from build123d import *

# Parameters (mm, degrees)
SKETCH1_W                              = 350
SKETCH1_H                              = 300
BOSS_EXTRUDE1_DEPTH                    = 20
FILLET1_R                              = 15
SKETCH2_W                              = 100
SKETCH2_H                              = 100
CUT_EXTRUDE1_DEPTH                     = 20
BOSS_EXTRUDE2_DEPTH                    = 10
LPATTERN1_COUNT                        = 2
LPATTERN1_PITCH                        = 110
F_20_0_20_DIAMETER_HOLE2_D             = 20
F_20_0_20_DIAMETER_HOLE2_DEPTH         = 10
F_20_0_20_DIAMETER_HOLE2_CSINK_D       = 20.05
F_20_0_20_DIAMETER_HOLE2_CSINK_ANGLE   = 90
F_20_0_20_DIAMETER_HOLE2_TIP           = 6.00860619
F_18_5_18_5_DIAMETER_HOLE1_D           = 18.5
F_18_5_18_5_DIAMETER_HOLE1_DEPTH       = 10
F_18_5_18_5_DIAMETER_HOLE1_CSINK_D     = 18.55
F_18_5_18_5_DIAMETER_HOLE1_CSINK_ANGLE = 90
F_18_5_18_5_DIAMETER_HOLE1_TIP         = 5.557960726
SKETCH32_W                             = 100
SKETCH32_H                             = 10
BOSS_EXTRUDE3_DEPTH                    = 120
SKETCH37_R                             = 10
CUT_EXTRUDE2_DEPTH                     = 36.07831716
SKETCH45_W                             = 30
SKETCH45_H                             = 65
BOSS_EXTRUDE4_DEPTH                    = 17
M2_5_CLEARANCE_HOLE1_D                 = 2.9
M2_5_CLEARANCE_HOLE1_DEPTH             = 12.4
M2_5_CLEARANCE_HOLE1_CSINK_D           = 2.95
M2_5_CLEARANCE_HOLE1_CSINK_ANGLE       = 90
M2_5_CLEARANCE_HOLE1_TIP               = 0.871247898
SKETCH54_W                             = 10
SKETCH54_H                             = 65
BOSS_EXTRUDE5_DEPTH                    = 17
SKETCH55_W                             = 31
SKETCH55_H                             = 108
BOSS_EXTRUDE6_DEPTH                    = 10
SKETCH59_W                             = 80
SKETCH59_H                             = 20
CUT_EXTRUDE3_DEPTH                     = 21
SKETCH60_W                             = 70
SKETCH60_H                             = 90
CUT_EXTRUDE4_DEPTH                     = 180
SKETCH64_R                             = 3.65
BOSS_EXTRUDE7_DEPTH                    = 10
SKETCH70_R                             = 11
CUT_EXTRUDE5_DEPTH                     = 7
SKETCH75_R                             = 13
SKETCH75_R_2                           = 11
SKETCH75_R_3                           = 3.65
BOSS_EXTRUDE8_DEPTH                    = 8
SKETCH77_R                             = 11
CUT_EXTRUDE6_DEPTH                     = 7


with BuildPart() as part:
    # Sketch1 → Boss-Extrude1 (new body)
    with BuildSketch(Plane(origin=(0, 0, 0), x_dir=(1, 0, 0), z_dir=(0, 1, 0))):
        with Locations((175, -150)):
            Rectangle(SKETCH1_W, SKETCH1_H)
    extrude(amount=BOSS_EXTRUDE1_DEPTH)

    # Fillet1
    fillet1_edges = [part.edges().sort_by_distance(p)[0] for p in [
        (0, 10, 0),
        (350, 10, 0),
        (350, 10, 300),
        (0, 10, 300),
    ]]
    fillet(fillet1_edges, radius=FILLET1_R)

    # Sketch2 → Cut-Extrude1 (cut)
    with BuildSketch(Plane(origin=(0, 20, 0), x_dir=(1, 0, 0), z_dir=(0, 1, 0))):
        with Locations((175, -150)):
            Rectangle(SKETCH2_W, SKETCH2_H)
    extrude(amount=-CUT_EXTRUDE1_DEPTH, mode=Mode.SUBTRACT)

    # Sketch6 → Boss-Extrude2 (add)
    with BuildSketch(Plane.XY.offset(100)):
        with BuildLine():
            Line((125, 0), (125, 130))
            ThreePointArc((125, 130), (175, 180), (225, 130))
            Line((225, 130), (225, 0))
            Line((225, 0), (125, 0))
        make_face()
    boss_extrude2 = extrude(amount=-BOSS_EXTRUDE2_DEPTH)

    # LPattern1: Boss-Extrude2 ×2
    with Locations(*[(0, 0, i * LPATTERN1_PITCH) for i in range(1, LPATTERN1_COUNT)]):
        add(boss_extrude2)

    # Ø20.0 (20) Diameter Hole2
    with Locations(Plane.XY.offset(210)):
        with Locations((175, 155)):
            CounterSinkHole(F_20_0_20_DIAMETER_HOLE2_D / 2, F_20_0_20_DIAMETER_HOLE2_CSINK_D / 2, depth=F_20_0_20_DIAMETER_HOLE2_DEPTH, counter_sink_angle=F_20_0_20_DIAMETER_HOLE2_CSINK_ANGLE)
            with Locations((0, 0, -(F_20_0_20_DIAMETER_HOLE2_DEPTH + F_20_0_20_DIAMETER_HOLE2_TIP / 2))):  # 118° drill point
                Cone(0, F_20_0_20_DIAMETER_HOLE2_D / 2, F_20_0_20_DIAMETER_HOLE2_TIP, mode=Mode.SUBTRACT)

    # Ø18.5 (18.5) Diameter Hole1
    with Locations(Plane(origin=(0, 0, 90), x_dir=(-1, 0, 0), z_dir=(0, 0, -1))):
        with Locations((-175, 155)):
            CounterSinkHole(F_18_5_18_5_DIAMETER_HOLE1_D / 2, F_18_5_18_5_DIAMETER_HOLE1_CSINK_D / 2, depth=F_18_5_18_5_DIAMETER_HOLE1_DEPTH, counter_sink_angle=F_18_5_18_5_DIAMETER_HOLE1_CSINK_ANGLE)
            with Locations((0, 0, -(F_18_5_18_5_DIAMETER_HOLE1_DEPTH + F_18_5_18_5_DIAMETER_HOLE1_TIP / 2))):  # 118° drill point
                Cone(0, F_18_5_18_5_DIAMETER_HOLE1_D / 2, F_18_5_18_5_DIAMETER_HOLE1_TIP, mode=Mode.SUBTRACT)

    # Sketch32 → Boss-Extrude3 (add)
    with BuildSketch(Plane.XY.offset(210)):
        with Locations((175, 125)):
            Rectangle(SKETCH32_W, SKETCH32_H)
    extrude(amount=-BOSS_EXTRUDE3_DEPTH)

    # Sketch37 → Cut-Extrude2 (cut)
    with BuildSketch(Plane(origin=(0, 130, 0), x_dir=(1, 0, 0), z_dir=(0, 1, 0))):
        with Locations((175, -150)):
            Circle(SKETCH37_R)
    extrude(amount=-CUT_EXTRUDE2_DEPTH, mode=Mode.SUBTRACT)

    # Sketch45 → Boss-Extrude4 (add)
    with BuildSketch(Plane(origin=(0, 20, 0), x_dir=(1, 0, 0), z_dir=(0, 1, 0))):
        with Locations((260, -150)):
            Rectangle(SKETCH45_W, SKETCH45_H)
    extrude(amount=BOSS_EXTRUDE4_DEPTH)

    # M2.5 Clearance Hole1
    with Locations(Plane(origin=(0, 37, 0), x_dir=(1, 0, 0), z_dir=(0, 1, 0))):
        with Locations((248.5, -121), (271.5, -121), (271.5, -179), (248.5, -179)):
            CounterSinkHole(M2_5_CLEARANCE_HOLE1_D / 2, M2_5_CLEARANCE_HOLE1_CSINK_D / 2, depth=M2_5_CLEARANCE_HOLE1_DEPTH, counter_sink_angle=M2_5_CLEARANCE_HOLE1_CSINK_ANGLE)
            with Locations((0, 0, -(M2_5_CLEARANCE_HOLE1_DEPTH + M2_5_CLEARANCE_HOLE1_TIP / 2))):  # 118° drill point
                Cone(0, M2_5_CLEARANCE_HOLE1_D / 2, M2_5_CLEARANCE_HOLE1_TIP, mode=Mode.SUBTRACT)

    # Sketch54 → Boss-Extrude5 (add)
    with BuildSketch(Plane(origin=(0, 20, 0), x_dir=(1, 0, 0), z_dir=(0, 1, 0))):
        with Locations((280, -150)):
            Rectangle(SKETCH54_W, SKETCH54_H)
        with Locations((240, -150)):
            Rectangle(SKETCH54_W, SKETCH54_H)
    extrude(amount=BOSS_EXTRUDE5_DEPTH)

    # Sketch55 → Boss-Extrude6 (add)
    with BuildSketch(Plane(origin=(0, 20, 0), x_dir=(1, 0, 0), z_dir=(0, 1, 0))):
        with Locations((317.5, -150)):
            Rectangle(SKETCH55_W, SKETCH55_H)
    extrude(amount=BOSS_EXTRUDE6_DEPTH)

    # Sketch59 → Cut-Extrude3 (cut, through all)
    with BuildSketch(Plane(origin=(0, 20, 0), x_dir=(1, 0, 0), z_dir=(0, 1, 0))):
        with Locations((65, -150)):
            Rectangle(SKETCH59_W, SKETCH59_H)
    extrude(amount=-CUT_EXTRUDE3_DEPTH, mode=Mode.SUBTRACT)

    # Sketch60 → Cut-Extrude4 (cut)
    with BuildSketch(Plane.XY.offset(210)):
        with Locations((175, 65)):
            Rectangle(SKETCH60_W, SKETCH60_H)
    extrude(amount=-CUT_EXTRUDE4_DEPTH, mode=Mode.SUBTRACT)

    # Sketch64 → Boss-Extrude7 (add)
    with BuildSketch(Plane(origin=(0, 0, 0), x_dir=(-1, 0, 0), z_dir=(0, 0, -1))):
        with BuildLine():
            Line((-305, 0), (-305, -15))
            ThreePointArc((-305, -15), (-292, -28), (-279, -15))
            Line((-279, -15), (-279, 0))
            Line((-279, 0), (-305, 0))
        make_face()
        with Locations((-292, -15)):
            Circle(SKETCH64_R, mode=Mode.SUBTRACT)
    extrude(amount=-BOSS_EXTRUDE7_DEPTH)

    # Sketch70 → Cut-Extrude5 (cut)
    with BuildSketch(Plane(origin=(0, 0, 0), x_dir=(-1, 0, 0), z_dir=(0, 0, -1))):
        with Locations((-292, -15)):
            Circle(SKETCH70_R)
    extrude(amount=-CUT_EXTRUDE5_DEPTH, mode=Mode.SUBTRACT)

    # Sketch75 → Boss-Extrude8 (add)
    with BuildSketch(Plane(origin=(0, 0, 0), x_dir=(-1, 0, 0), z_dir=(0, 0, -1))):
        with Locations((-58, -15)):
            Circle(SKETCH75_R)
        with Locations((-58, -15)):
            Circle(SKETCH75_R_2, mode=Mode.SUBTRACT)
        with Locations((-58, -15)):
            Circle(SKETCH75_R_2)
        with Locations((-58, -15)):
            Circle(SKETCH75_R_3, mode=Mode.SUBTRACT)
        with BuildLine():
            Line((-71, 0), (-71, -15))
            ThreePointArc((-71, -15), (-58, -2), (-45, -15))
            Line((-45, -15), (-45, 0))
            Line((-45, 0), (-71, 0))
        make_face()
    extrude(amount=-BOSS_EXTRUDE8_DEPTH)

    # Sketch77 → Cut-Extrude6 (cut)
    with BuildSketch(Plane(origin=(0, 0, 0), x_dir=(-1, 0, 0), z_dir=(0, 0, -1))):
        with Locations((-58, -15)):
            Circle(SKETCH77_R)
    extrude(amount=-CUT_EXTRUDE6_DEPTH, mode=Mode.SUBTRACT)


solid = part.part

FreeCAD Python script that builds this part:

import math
import FreeCAD as App
import Part
import Sketcher
from FreeCAD import Vector


def edges_at(feature, points):
    """Names of the edges that pass closest to the given points."""
    edges = feature.Shape.Edges
    near = lambda p: min(range(len(edges)), key=lambda i: edges[i].distToShape(Part.Vertex(*p))[0])
    return sorted({f"Edge{near(p) + 1}" for p in points})


def add_polygon(sketch, points):
    """Adds a closed chain of lines whose ends are joined by coincident constraints."""
    first, n = sketch.GeometryCount, len(points)
    for a, b in zip(points, points[1:] + points[:1]):
        sketch.addGeometry(Part.LineSegment(App.Vector(*a, 0), App.Vector(*b, 0)), False)
    for i in range(n):
        sketch.addConstraint(Sketcher.Constraint("Coincident", first + i, 2, first + (i + 1) % n, 1))

doc = App.newDocument("Part")
params = doc.addObject("Spreadsheet::Sheet", "Params")
for row, (alias, value) in enumerate([
    ("sketch1_width", "350 mm"),
    ("sketch1_height", "300 mm"),
    ("pad1_length", "20 mm"),
    ("fillet_radius", "15 mm"),
    ("sketch2_width", "100 mm"),
    ("pocket1_length", "20 mm"),
    ("sketch3_radius", "50 mm"),
    ("sketch3_height", "130 mm"),
    ("pad2_length", "10 mm"),
    ("linearpattern_pitch", "110 mm"),
    ("sketch4_diameter", "20 mm"),
    ("hole_diameter", "20 mm"),
    ("hole_depth", "10 mm"),
    ("hole_csink_diameter", "20.05 mm"),
    ("sketch5_diameter", "18.5 mm"),
    ("hole2_diameter", "18.5 mm"),
    ("hole2_depth", "10 mm"),
    ("hole2_csink_diameter", "18.55 mm"),
    ("sketch6_width", "100 mm"),
    ("sketch6_height", "10 mm"),
    ("pad3_length", "120 mm"),
    ("sketch7_diameter", "20 mm"),
    ("pocket2_length", "36.078317 mm"),
    ("sketch8_width", "30 mm"),
    ("sketch8_height", "65 mm"),
    ("pad4_length", "17 mm"),
    ("sketch9_diameter", "2.9 mm"),
    ("hole3_diameter", "2.9 mm"),
    ("hole3_depth", "12.4 mm"),
    ("hole3_csink_diameter", "2.95 mm"),
    ("sketch10_width", "10 mm"),
    ("sketch10_height", "65 mm"),
    ("pad5_length", "17 mm"),
    ("sketch11_width", "31 mm"),
    ("sketch11_height", "108 mm"),
    ("pad6_length", "10 mm"),
    ("sketch12_width", "80 mm"),
    ("sketch12_height", "20 mm"),
    ("sketch13_width", "70 mm"),
    ("sketch13_height", "90 mm"),
    ("pocket4_length", "180 mm"),
    ("sketch14_radius", "13 mm"),
    ("sketch14_diameter", "7.3 mm"),
    ("sketch14_height", "15 mm"),
    ("pad7_length", "10 mm"),
    ("sketch15_diameter", "22 mm"),
    ("pocket5_length", "7 mm"),
    ("sketch16_radius", "13 mm"),
    ("sketch16_diameter", "7.3 mm"),
    ("sketch16_height", "15 mm"),
    ("pad8_length", "8 mm"),
    ("sketch17_diameter", "22 mm"),
    ("pocket6_length", "7 mm"),
], start=1):
    params.set(f"A{row}", alias)
    params.set(f"B{row}", "=" + value)
    params.setAlias(f"B{row}", alias)

body = doc.addObject("PartDesign::Body", "Body")

# Sketch on XZ plane
sketch1 = body.newObject("Sketcher::SketchObject", "Sketch")
sketch1.AttachmentSupport = (doc.getObject("XZ_Plane"), [""])
sketch1.MapMode = "FlatFace"
add_polygon(sketch1, [(0, 0), (0, 300), (350, 300), (350, 0)])  # lines 0-3
sketch1.addConstraint([
    Sketcher.Constraint("Vertical", 0),
    Sketcher.Constraint("Horizontal", 1),
    Sketcher.Constraint("Vertical", 2),
    Sketcher.Constraint("Horizontal", 3),
    Sketcher.Constraint("Coincident", 3, 2, -1, 1),
    Sketcher.Constraint("DistanceX", 1, 1, 1, 2, 350.0),
    Sketcher.Constraint("DistanceY", 0, 1, 0, 2, 300.0),
])
sketch1.setExpression("Constraints[9]", "Params.sketch1_width")
sketch1.setExpression("Constraints[10]", "Params.sketch1_height")
pad1 = body.newObject("PartDesign::Pad", "Pad")
pad1.Profile = sketch1
pad1.setExpression("Length", "Params.pad1_length")
pad1.Reversed = True
doc.recompute()

fillet = body.newObject("PartDesign::Fillet", "Fillet")
fillet.Base = (pad1, edges_at(pad1, [
    (0, 10, 0),
    (350, 10, 0),
    (350, 10, 300),
    (0, 10, 300),
]))
fillet.setExpression("Radius", "Params.fillet_radius")

# Sketch on XZ plane
sketch2 = body.newObject("Sketcher::SketchObject", "Sketch001")
sketch2.AttachmentSupport = (doc.getObject("XZ_Plane"), [""])
sketch2.MapMode = "FlatFace"
sketch2.AttachmentOffset = App.Placement(Vector(0, 0, -20), App.Rotation())
add_polygon(sketch2, [(125, 100), (125, 200), (225, 200), (225, 100)])  # lines 0-3
sketch2.addConstraint([
    Sketcher.Constraint("Vertical", 0),
    Sketcher.Constraint("Horizontal", 1),
    Sketcher.Constraint("Vertical", 2),
    Sketcher.Constraint("Horizontal", 3),
    Sketcher.Constraint("Equal", 3, 0),
    Sketcher.Constraint("DistanceX", 1, 1, 1, 2, 100.0),
    Sketcher.Constraint("DistanceX", -1, 1, 0, 2, 125.0),
    Sketcher.Constraint("DistanceY", -1, 1, 0, 2, 200.0),
])
sketch2.setExpression("Constraints[9]", "Params.sketch2_width")
pocket1 = body.newObject("PartDesign::Pocket", "Pocket")
pocket1.Profile = sketch2
pocket1.setExpression("Length", "Params.pocket1_length")
pocket1.Reversed = True

# Sketch on XY plane
sketch3 = body.newObject("Sketcher::SketchObject", "Sketch002")
sketch3.AttachmentSupport = (doc.getObject("XY_Plane"), [""])
sketch3.MapMode = "FlatFace"
sketch3.AttachmentOffset = App.Placement(Vector(0, 0, 100), App.Rotation())
sketch3.addGeometry([
    Part.LineSegment(Vector(125, 130, 0), Vector(125, 0, 0)),
    Part.LineSegment(Vector(125, 0, 0), Vector(225, 0, 0)),
    Part.LineSegment(Vector(225, 0, 0), Vector(225, 130, 0)),
    Part.ArcOfCircle(Part.Circle(Vector(175, 130, 0), Vector(0, 0, 1), 50), math.radians(0), math.radians(180)),
], False)
sketch3.addConstraint([
    Sketcher.Constraint("Coincident", 0, 2, 1, 1),
    Sketcher.Constraint("Coincident", 1, 2, 2, 1),
    Sketcher.Constraint("Tangent", 2, 2, 3, 1),
    Sketcher.Constraint("Tangent", 3, 2, 0, 1),
    Sketcher.Constraint("Vertical", 0),
    Sketcher.Constraint("Horizontal", 1),
    Sketcher.Constraint("Vertical", 2),
    Sketcher.Constraint("PointOnObject", 0, 2, -1),
    Sketcher.Constraint("Radius", 3, 50.0),
    Sketcher.Constraint("DistanceY", 0, 2, 0, 1, 130.0),
    Sketcher.Constraint("DistanceX", -1, 1, 3, 3, 175.0),
])
sketch3.setExpression("Constraints[8]", "Params.sketch3_radius")
sketch3.setExpression("Constraints[9]", "Params.sketch3_height")
pad2 = body.newObject("PartDesign::Pad", "Pad001")
pad2.Profile = sketch3
pad2.setExpression("Length", "Params.pad2_length")
pad2.Reversed = True
doc.recompute()

linearpattern = body.newObject("PartDesign::LinearPattern", "LinearPattern")
linearpattern.Originals = [pad2]
linearpattern.Direction = (doc.getObject("Z_Axis"), [""])
linearpattern.Mode = "offset"
linearpattern.setExpression("Offset", "Params.linearpattern_pitch")
linearpattern.Occurrences = 2
body.Tip = linearpattern

# Sketch on XY plane
sketch4 = body.newObject("Sketcher::SketchObject", "Sketch003")
sketch4.AttachmentSupport = (doc.getObject("XY_Plane"), [""])
sketch4.MapMode = "FlatFace"
sketch4.AttachmentOffset = App.Placement(Vector(0, 0, 210), App.Rotation())
sketch4.addGeometry(Part.Circle(Vector(175, 155, 0), Vector(0, 0, 1), 10), False)
sketch4.addConstraint([
    Sketcher.Constraint("Diameter", 0, 20.0),
    Sketcher.Constraint("DistanceX", -1, 1, 0, 3, 175.0),
    Sketcher.Constraint("DistanceY", -1, 1, 0, 3, 155.0),
])
sketch4.setExpression("Constraints[0]", "Params.sketch4_diameter")
doc.recompute()
hole = body.newObject("PartDesign::Hole", "Hole")
hole.Profile = sketch4
hole.ThreadType = "None"
hole.setExpression("Diameter", "Params.hole_diameter")
hole.DepthType = "Dimension"
hole.setExpression("Depth", "Params.hole_depth")
hole.DrillPoint = "Angled"
hole.DrillPointAngle = 118
hole.HoleCutType = "Countersink"
hole.setExpression("HoleCutDiameter", "Params.hole_csink_diameter")
hole.HoleCutCountersinkAngle = 90

# Sketch on XY plane
sketch5 = body.newObject("Sketcher::SketchObject", "Sketch004")
sketch5.AttachmentSupport = (doc.getObject("XY_Plane"), [""])
sketch5.MapMode = "FlatFace"
sketch5.AttachmentOffset = App.Placement(Vector(0, 0, 90), App.Rotation())
sketch5.addGeometry(Part.Circle(Vector(175, 155, 0), Vector(0, 0, 1), 9), False)
sketch5.addConstraint([
    Sketcher.Constraint("Diameter", 0, 18.5),
    Sketcher.Constraint("DistanceX", -1, 1, 0, 3, 175.0),
    Sketcher.Constraint("DistanceY", -1, 1, 0, 3, 155.0),
])
sketch5.setExpression("Constraints[0]", "Params.sketch5_diameter")
doc.recompute()
hole2 = body.newObject("PartDesign::Hole", "Hole001")
hole2.Profile = sketch5
hole2.ThreadType = "None"
hole2.setExpression("Diameter", "Params.hole2_diameter")
hole2.DepthType = "Dimension"
hole2.setExpression("Depth", "Params.hole2_depth")
hole2.DrillPoint = "Angled"
hole2.DrillPointAngle = 118
hole2.HoleCutType = "Countersink"
hole2.setExpression("HoleCutDiameter", "Params.hole2_csink_diameter")
hole2.HoleCutCountersinkAngle = 90
hole2.Reversed = True

# Sketch on XY plane
sketch6 = body.newObject("Sketcher::SketchObject", "Sketch005")
sketch6.AttachmentSupport = (doc.getObject("XY_Plane"), [""])
sketch6.MapMode = "FlatFace"
sketch6.AttachmentOffset = App.Placement(Vector(0, 0, 210), App.Rotation())
add_polygon(sketch6, [(125, 130), (125, 120), (225, 120), (225, 130)])  # lines 0-3
sketch6.addConstraint([
    Sketcher.Constraint("Vertical", 0),
    Sketcher.Constraint("Horizontal", 1),
    Sketcher.Constraint("Vertical", 2),
    Sketcher.Constraint("Horizontal", 3),
    Sketcher.Constraint("DistanceX", 1, 1, 1, 2, 100.0),
    Sketcher.Constraint("DistanceY", 0, 2, 0, 1, 10.0),
    Sketcher.Constraint("DistanceX", -1, 1, 0, 2, 125.0),
    Sketcher.Constraint("DistanceY", -1, 1, 0, 2, 120.0),
])
sketch6.setExpression("Constraints[8]", "Params.sketch6_width")
sketch6.setExpression("Constraints[9]", "Params.sketch6_height")
pad3 = body.newObject("PartDesign::Pad", "Pad002")
pad3.Profile = sketch6
pad3.setExpression("Length", "Params.pad3_length")
pad3.Reversed = True

# Sketch on XZ plane
sketch7 = body.newObject("Sketcher::SketchObject", "Sketch006")
sketch7.AttachmentSupport = (doc.getObject("XZ_Plane"), [""])
sketch7.MapMode = "FlatFace"
sketch7.AttachmentOffset = App.Placement(Vector(0, 0, -130), App.Rotation())
sketch7.addGeometry(Part.Circle(Vector(175, 150, 0), Vector(0, 0, 1), 10), False)
sketch7.addConstraint([
    Sketcher.Constraint("Diameter", 0, 20.0),
    Sketcher.Constraint("DistanceX", -1, 1, 0, 3, 175.0),
    Sketcher.Constraint("DistanceY", -1, 1, 0, 3, 150.0),
])
sketch7.setExpression("Constraints[0]", "Params.sketch7_diameter")
pocket2 = body.newObject("PartDesign::Pocket", "Pocket001")
pocket2.Profile = sketch7
pocket2.setExpression("Length", "Params.pocket2_length")
pocket2.Reversed = True

# Sketch on XZ plane
sketch8 = body.newObject("Sketcher::SketchObject", "Sketch007")
sketch8.AttachmentSupport = (doc.getObject("XZ_Plane"), [""])
sketch8.MapMode = "FlatFace"
sketch8.AttachmentOffset = App.Placement(Vector(0, 0, -20), App.Rotation())
add_polygon(sketch8, [(245, 118), (245, 182), (275, 182), (275, 118)])  # lines 0-3
sketch8.addConstraint([
    Sketcher.Constraint("Vertical", 0),
    Sketcher.Constraint("Horizontal", 1),
    Sketcher.Constraint("Vertical", 2),
    Sketcher.Constraint("Horizontal", 3),
    Sketcher.Constraint("DistanceX", 1, 1, 1, 2, 30.0),
    Sketcher.Constraint("DistanceY", 0, 1, 0, 2, 65.0),
    Sketcher.Constraint("DistanceX", -1, 1, 0, 2, 245.0),
    Sketcher.Constraint("DistanceY", -1, 1, 0, 2, 182.5),
])
sketch8.setExpression("Constraints[8]", "Params.sketch8_width")
sketch8.setExpression("Constraints[9]", "Params.sketch8_height")
pad4 = body.newObject("PartDesign::Pad", "Pad003")
pad4.Profile = sketch8
pad4.setExpression("Length", "Params.pad4_length")
pad4.Reversed = True

# Sketch on XZ plane
sketch9 = body.newObject("Sketcher::SketchObject", "Sketch008")
sketch9.AttachmentSupport = (doc.getObject("XZ_Plane"), [""])
sketch9.MapMode = "FlatFace"
sketch9.AttachmentOffset = App.Placement(Vector(0, 0, -37), App.Rotation())
sketch9.addGeometry([
    Part.Circle(Vector(248.5, 121, 0), Vector(0, 0, 1), 1.4),
    Part.Circle(Vector(271.5, 121, 0), Vector(0, 0, 1), 1.4),
    Part.Circle(Vector(271.5, 179, 0), Vector(0, 0, 1), 1.4),
    Part.Circle(Vector(248.5, 179, 0), Vector(0, 0, 1), 1.4),
], False)
sketch9.addConstraint([
    Sketcher.Constraint("Equal", 0, 1),
    Sketcher.Constraint("Equal", 1, 2),
    Sketcher.Constraint("Equal", 2, 3),
    Sketcher.Constraint("Horizontal", 0, 3, 1, 3),
    Sketcher.Constraint("Horizontal", 2, 3, 3, 3),
    Sketcher.Constraint("Vertical", 1, 3, 2, 3),
    Sketcher.Constraint("Vertical", 0, 3, 3, 3),
    Sketcher.Constraint("Diameter", 0, 2.9),
    Sketcher.Constraint("DistanceY", -1, 1, 0, 3, 121.0),
    Sketcher.Constraint("DistanceY", -1, 1, 2, 3, 179.0),
    Sketcher.Constraint("DistanceX", 0, 3, 1, 3, 23.0),
    Sketcher.Constraint("DistanceX", -1, 1, 0, 3, 248.5),
])
sketch9.setExpression("Constraints[7]", "Params.sketch9_diameter")
doc.recompute()
hole3 = body.newObject("PartDesign::Hole", "Hole002")
hole3.Profile = sketch9
hole3.ThreadType = "None"
hole3.setExpression("Diameter", "Params.hole3_diameter")
hole3.DepthType = "Dimension"
hole3.setExpression("Depth", "Params.hole3_depth")
hole3.DrillPoint = "Angled"
hole3.DrillPointAngle = 118
hole3.HoleCutType = "Countersink"
hole3.setExpression("HoleCutDiameter", "Params.hole3_csink_diameter")
hole3.HoleCutCountersinkAngle = 90
hole3.Reversed = True

# Sketch on XZ plane
sketch10 = body.newObject("Sketcher::SketchObject", "Sketch009")
sketch10.AttachmentSupport = (doc.getObject("XZ_Plane"), [""])
sketch10.MapMode = "FlatFace"
sketch10.AttachmentOffset = App.Placement(Vector(0, 0, -20), App.Rotation())
add_polygon(sketch10, [(275, 118), (275, 182), (285, 182), (285, 118)])  # lines 0-3
add_polygon(sketch10, [(235, 118), (235, 182), (245, 182), (245, 118)])  # lines 4-7
sketch10.addConstraint([
    Sketcher.Constraint("Vertical", 0),
    Sketcher.Constraint("Horizontal", 1),
    Sketcher.Constraint("Vertical", 2),
    Sketcher.Constraint("Horizontal", 3),
    Sketcher.Constraint("Vertical", 4),
    Sketcher.Constraint("Horizontal", 5),
    Sketcher.Constraint("Vertical", 6),
    Sketcher.Constraint("Horizontal", 7),
    Sketcher.Constraint("Horizontal", 1, 2, 4, 2),
    Sketcher.Constraint("Horizontal", 3, 2, 6, 2),
    Sketcher.Constraint("Equal", 3, 5),
    Sketcher.Constraint("DistanceX", 1, 1, 1, 2, 10.0),
    Sketcher.Constraint("DistanceY", 0, 1, 0, 2, 65.0),
    Sketcher.Constraint("DistanceX", -1, 1, 0, 2, 275.0),
    Sketcher.Constraint("DistanceX", -1, 1, 4, 2, 235.0),
    Sketcher.Constraint("DistanceY", -1, 1, 0, 2, 182.5),
])
sketch10.setExpression("Constraints[19]", "Params.sketch10_width")
sketch10.setExpression("Constraints[20]", "Params.sketch10_height")
pad5 = body.newObject("PartDesign::Pad", "Pad004")
pad5.Profile = sketch10
pad5.setExpression("Length", "Params.pad5_length")
pad5.Reversed = True

# Sketch on XZ plane
sketch11 = body.newObject("Sketcher::SketchObject", "Sketch010")
sketch11.AttachmentSupport = (doc.getObject("XZ_Plane"), [""])
sketch11.MapMode = "FlatFace"
sketch11.AttachmentOffset = App.Placement(Vector(0, 0, -20), App.Rotation())
add_polygon(sketch11, [(302, 96), (302, 204), (333, 204), (333, 96)])  # lines 0-3
sketch11.addConstraint([
    Sketcher.Constraint("Vertical", 0),
    Sketcher.Constraint("Horizontal", 1),
    Sketcher.Constraint("Vertical", 2),
    Sketcher.Constraint("Horizontal", 3),
    Sketcher.Constraint("DistanceX", 1, 1, 1, 2, 31.0),
    Sketcher.Constraint("DistanceY", 0, 1, 0, 2, 108.0),
    Sketcher.Constraint("DistanceX", -1, 1, 0, 2, 302.0),
    Sketcher.Constraint("DistanceY", -1, 1, 0, 2, 204.0),
])
sketch11.setExpression("Constraints[8]", "Params.sketch11_width")
sketch11.setExpression("Constraints[9]", "Params.sketch11_height")
pad6 = body.newObject("PartDesign::Pad", "Pad005")
pad6.Profile = sketch11
pad6.setExpression("Length", "Params.pad6_length")
pad6.Reversed = True

# Sketch on XZ plane
sketch12 = body.newObject("Sketcher::SketchObject", "Sketch011")
sketch12.AttachmentSupport = (doc.getObject("XZ_Plane"), [""])
sketch12.MapMode = "FlatFace"
sketch12.AttachmentOffset = App.Placement(Vector(0, 0, -20), App.Rotation())
add_polygon(sketch12, [(25, 140), (25, 160), (105, 160), (105, 140)])  # lines 0-3
sketch12.addConstraint([
    Sketcher.Constraint("Vertical", 0),
    Sketcher.Constraint("Horizontal", 1),
    Sketcher.Constraint("Vertical", 2),
    Sketcher.Constraint("Horizontal", 3),
    Sketcher.Constraint("DistanceX", 1, 1, 1, 2, 80.0),
    Sketcher.Constraint("DistanceY", 0, 1, 0, 2, 20.0),
    Sketcher.Constraint("DistanceX", -1, 1, 0, 2, 25.0),
    Sketcher.Constraint("DistanceY", -1, 1, 0, 2, 160.0),
])
sketch12.setExpression("Constraints[8]", "Params.sketch12_width")
sketch12.setExpression("Constraints[9]", "Params.sketch12_height")
pocket3 = body.newObject("PartDesign::Pocket", "Pocket002")
pocket3.Profile = sketch12
pocket3.Type = "ThroughAll"
pocket3.Reversed = True

# Sketch on XY plane
sketch13 = body.newObject("Sketcher::SketchObject", "Sketch012")
sketch13.AttachmentSupport = (doc.getObject("XY_Plane"), [""])
sketch13.MapMode = "FlatFace"
sketch13.AttachmentOffset = App.Placement(Vector(0, 0, 210), App.Rotation())
add_polygon(sketch13, [(140, 110), (140, 20), (210, 20), (210, 110)])  # lines 0-3
sketch13.addConstraint([
    Sketcher.Constraint("Vertical", 0),
    Sketcher.Constraint("Horizontal", 1),
    Sketcher.Constraint("Vertical", 2),
    Sketcher.Constraint("Horizontal", 3),
    Sketcher.Constraint("DistanceX", 1, 1, 1, 2, 70.0),
    Sketcher.Constraint("DistanceY", 0, 2, 0, 1, 90.0),
    Sketcher.Constraint("DistanceX", -1, 1, 0, 2, 140.0),
    Sketcher.Constraint("DistanceY", -1, 1, 0, 2, 20.0),
])
sketch13.setExpression("Constraints[8]", "Params.sketch13_width")
sketch13.setExpression("Constraints[9]", "Params.sketch13_height")
pocket4 = body.newObject("PartDesign::Pocket", "Pocket003")
pocket4.Profile = sketch13
pocket4.setExpression("Length", "Params.pocket4_length")

# Sketch on XY plane
sketch14 = body.newObject("Sketcher::SketchObject", "Sketch013")
sketch14.AttachmentSupport = (doc.getObject("XY_Plane"), [""])
sketch14.MapMode = "FlatFace"
sketch14.addGeometry([
    Part.LineSegment(Vector(305, 0, 0), Vector(305, -15, 0)),  # 0
    Part.ArcOfCircle(Part.Circle(Vector(292, -15, 0), Vector(0, 0, 1), 13), math.radians(180), math.radians(360)),  # 1
    Part.LineSegment(Vector(279, -15, 0), Vector(279, 0, 0)),  # 2
    Part.LineSegment(Vector(279, 0, 0), Vector(305, 0, 0)),  # 3
    Part.Circle(Vector(292, -15, 0), Vector(0, 0, 1), 3.6),  # 4
], False)
sketch14.addConstraint([
    Sketcher.Constraint("Tangent", 0, 2, 1, 2),
    Sketcher.Constraint("Tangent", 1, 1, 2, 1),
    Sketcher.Constraint("Coincident", 2, 2, 3, 1),
    Sketcher.Constraint("Coincident", 3, 2, 0, 1),
    Sketcher.Constraint("Vertical", 0),
    Sketcher.Constraint("Vertical", 2),
    Sketcher.Constraint("Horizontal", 3),
    Sketcher.Constraint("Coincident", 4, 3, 1, 3),
    Sketcher.Constraint("PointOnObject", 2, 2, -1),
    Sketcher.Constraint("Radius", 1, 13.0),
    Sketcher.Constraint("Diameter", 4, 7.3),
    Sketcher.Constraint("DistanceY", 0, 2, 0, 1, 15.0),
    Sketcher.Constraint("DistanceX", -1, 1, 1, 3, 292.0),
])
sketch14.setExpression("Constraints[9]", "Params.sketch14_radius")
sketch14.setExpression("Constraints[10]", "Params.sketch14_diameter")
sketch14.setExpression("Constraints[11]", "Params.sketch14_height")
pad7 = body.newObject("PartDesign::Pad", "Pad006")
pad7.Profile = sketch14
pad7.setExpression("Length", "Params.pad7_length")

# Sketch on XY plane
sketch15 = body.newObject("Sketcher::SketchObject", "Sketch014")
sketch15.AttachmentSupport = (doc.getObject("XY_Plane"), [""])
sketch15.MapMode = "FlatFace"
sketch15.addGeometry(Part.Circle(Vector(292, -15, 0), Vector(0, 0, 1), 11), False)
sketch15.addConstraint([
    Sketcher.Constraint("Diameter", 0, 22.0),
    Sketcher.Constraint("DistanceX", -1, 1, 0, 3, 292.0),
    Sketcher.Constraint("DistanceY", 0, 3, -1, 1, 15.0),
])
sketch15.setExpression("Constraints[0]", "Params.sketch15_diameter")
pocket5 = body.newObject("PartDesign::Pocket", "Pocket004")
pocket5.Profile = sketch15
pocket5.setExpression("Length", "Params.pocket5_length")
pocket5.Reversed = True

# Sketch on XY plane
sketch16 = body.newObject("Sketcher::SketchObject", "Sketch015")
sketch16.AttachmentSupport = (doc.getObject("XY_Plane"), [""])
sketch16.MapMode = "FlatFace"
sketch16.addGeometry([
    Part.ArcOfCircle(Part.Circle(Vector(58, -15, 0), Vector(0, 0, 1), 13), math.radians(180), math.radians(360)),  # 0
    Part.LineSegment(Vector(45, -15, 0), Vector(45, 0, 0)),  # 1
    Part.LineSegment(Vector(45, 0, 0), Vector(71, 0, 0)),  # 2
    Part.LineSegment(Vector(71, 0, 0), Vector(71, -15, 0)),  # 3
    Part.Circle(Vector(58, -15, 0), Vector(0, 0, 1), 3.6),  # 4
], False)
sketch16.addConstraint([
    Sketcher.Constraint("Tangent", 0, 1, 1, 1),
    Sketcher.Constraint("Coincident", 1, 2, 2, 1),
    Sketcher.Constraint("Coincident", 2, 2, 3, 1),
    Sketcher.Constraint("Tangent", 3, 2, 0, 2),
    Sketcher.Constraint("Vertical", 1),
    Sketcher.Constraint("Horizontal", 2),
    Sketcher.Constraint("Vertical", 3),
    Sketcher.Constraint("Coincident", 4, 3, 0, 3),
    Sketcher.Constraint("PointOnObject", 1, 2, -1),
    Sketcher.Constraint("Radius", 0, 13.0),
    Sketcher.Constraint("Diameter", 4, 7.3),
    Sketcher.Constraint("DistanceY", 1, 1, 1, 2, 15.0),
    Sketcher.Constraint("DistanceX", -1, 1, 0, 3, 58.0),
])
sketch16.setExpression("Constraints[9]", "Params.sketch16_radius")
sketch16.setExpression("Constraints[10]", "Params.sketch16_diameter")
sketch16.setExpression("Constraints[11]", "Params.sketch16_height")
pad8 = body.newObject("PartDesign::Pad", "Pad007")
pad8.Profile = sketch16
pad8.setExpression("Length", "Params.pad8_length")

# Sketch on XY plane
sketch17 = body.newObject("Sketcher::SketchObject", "Sketch016")
sketch17.AttachmentSupport = (doc.getObject("XY_Plane"), [""])
sketch17.MapMode = "FlatFace"
sketch17.addGeometry(Part.Circle(Vector(58, -15, 0), Vector(0, 0, 1), 11), False)
sketch17.addConstraint([
    Sketcher.Constraint("Diameter", 0, 22.0),
    Sketcher.Constraint("DistanceX", -1, 1, 0, 3, 58.0),
    Sketcher.Constraint("DistanceY", 0, 3, -1, 1, 15.0),
])
sketch17.setExpression("Constraints[0]", "Params.sketch17_diameter")
pocket6 = body.newObject("PartDesign::Pocket", "Pocket005")
pocket6.Profile = sketch17
pocket6.setExpression("Length", "Params.pocket6_length")
pocket6.Reversed = True

doc.recompute()
